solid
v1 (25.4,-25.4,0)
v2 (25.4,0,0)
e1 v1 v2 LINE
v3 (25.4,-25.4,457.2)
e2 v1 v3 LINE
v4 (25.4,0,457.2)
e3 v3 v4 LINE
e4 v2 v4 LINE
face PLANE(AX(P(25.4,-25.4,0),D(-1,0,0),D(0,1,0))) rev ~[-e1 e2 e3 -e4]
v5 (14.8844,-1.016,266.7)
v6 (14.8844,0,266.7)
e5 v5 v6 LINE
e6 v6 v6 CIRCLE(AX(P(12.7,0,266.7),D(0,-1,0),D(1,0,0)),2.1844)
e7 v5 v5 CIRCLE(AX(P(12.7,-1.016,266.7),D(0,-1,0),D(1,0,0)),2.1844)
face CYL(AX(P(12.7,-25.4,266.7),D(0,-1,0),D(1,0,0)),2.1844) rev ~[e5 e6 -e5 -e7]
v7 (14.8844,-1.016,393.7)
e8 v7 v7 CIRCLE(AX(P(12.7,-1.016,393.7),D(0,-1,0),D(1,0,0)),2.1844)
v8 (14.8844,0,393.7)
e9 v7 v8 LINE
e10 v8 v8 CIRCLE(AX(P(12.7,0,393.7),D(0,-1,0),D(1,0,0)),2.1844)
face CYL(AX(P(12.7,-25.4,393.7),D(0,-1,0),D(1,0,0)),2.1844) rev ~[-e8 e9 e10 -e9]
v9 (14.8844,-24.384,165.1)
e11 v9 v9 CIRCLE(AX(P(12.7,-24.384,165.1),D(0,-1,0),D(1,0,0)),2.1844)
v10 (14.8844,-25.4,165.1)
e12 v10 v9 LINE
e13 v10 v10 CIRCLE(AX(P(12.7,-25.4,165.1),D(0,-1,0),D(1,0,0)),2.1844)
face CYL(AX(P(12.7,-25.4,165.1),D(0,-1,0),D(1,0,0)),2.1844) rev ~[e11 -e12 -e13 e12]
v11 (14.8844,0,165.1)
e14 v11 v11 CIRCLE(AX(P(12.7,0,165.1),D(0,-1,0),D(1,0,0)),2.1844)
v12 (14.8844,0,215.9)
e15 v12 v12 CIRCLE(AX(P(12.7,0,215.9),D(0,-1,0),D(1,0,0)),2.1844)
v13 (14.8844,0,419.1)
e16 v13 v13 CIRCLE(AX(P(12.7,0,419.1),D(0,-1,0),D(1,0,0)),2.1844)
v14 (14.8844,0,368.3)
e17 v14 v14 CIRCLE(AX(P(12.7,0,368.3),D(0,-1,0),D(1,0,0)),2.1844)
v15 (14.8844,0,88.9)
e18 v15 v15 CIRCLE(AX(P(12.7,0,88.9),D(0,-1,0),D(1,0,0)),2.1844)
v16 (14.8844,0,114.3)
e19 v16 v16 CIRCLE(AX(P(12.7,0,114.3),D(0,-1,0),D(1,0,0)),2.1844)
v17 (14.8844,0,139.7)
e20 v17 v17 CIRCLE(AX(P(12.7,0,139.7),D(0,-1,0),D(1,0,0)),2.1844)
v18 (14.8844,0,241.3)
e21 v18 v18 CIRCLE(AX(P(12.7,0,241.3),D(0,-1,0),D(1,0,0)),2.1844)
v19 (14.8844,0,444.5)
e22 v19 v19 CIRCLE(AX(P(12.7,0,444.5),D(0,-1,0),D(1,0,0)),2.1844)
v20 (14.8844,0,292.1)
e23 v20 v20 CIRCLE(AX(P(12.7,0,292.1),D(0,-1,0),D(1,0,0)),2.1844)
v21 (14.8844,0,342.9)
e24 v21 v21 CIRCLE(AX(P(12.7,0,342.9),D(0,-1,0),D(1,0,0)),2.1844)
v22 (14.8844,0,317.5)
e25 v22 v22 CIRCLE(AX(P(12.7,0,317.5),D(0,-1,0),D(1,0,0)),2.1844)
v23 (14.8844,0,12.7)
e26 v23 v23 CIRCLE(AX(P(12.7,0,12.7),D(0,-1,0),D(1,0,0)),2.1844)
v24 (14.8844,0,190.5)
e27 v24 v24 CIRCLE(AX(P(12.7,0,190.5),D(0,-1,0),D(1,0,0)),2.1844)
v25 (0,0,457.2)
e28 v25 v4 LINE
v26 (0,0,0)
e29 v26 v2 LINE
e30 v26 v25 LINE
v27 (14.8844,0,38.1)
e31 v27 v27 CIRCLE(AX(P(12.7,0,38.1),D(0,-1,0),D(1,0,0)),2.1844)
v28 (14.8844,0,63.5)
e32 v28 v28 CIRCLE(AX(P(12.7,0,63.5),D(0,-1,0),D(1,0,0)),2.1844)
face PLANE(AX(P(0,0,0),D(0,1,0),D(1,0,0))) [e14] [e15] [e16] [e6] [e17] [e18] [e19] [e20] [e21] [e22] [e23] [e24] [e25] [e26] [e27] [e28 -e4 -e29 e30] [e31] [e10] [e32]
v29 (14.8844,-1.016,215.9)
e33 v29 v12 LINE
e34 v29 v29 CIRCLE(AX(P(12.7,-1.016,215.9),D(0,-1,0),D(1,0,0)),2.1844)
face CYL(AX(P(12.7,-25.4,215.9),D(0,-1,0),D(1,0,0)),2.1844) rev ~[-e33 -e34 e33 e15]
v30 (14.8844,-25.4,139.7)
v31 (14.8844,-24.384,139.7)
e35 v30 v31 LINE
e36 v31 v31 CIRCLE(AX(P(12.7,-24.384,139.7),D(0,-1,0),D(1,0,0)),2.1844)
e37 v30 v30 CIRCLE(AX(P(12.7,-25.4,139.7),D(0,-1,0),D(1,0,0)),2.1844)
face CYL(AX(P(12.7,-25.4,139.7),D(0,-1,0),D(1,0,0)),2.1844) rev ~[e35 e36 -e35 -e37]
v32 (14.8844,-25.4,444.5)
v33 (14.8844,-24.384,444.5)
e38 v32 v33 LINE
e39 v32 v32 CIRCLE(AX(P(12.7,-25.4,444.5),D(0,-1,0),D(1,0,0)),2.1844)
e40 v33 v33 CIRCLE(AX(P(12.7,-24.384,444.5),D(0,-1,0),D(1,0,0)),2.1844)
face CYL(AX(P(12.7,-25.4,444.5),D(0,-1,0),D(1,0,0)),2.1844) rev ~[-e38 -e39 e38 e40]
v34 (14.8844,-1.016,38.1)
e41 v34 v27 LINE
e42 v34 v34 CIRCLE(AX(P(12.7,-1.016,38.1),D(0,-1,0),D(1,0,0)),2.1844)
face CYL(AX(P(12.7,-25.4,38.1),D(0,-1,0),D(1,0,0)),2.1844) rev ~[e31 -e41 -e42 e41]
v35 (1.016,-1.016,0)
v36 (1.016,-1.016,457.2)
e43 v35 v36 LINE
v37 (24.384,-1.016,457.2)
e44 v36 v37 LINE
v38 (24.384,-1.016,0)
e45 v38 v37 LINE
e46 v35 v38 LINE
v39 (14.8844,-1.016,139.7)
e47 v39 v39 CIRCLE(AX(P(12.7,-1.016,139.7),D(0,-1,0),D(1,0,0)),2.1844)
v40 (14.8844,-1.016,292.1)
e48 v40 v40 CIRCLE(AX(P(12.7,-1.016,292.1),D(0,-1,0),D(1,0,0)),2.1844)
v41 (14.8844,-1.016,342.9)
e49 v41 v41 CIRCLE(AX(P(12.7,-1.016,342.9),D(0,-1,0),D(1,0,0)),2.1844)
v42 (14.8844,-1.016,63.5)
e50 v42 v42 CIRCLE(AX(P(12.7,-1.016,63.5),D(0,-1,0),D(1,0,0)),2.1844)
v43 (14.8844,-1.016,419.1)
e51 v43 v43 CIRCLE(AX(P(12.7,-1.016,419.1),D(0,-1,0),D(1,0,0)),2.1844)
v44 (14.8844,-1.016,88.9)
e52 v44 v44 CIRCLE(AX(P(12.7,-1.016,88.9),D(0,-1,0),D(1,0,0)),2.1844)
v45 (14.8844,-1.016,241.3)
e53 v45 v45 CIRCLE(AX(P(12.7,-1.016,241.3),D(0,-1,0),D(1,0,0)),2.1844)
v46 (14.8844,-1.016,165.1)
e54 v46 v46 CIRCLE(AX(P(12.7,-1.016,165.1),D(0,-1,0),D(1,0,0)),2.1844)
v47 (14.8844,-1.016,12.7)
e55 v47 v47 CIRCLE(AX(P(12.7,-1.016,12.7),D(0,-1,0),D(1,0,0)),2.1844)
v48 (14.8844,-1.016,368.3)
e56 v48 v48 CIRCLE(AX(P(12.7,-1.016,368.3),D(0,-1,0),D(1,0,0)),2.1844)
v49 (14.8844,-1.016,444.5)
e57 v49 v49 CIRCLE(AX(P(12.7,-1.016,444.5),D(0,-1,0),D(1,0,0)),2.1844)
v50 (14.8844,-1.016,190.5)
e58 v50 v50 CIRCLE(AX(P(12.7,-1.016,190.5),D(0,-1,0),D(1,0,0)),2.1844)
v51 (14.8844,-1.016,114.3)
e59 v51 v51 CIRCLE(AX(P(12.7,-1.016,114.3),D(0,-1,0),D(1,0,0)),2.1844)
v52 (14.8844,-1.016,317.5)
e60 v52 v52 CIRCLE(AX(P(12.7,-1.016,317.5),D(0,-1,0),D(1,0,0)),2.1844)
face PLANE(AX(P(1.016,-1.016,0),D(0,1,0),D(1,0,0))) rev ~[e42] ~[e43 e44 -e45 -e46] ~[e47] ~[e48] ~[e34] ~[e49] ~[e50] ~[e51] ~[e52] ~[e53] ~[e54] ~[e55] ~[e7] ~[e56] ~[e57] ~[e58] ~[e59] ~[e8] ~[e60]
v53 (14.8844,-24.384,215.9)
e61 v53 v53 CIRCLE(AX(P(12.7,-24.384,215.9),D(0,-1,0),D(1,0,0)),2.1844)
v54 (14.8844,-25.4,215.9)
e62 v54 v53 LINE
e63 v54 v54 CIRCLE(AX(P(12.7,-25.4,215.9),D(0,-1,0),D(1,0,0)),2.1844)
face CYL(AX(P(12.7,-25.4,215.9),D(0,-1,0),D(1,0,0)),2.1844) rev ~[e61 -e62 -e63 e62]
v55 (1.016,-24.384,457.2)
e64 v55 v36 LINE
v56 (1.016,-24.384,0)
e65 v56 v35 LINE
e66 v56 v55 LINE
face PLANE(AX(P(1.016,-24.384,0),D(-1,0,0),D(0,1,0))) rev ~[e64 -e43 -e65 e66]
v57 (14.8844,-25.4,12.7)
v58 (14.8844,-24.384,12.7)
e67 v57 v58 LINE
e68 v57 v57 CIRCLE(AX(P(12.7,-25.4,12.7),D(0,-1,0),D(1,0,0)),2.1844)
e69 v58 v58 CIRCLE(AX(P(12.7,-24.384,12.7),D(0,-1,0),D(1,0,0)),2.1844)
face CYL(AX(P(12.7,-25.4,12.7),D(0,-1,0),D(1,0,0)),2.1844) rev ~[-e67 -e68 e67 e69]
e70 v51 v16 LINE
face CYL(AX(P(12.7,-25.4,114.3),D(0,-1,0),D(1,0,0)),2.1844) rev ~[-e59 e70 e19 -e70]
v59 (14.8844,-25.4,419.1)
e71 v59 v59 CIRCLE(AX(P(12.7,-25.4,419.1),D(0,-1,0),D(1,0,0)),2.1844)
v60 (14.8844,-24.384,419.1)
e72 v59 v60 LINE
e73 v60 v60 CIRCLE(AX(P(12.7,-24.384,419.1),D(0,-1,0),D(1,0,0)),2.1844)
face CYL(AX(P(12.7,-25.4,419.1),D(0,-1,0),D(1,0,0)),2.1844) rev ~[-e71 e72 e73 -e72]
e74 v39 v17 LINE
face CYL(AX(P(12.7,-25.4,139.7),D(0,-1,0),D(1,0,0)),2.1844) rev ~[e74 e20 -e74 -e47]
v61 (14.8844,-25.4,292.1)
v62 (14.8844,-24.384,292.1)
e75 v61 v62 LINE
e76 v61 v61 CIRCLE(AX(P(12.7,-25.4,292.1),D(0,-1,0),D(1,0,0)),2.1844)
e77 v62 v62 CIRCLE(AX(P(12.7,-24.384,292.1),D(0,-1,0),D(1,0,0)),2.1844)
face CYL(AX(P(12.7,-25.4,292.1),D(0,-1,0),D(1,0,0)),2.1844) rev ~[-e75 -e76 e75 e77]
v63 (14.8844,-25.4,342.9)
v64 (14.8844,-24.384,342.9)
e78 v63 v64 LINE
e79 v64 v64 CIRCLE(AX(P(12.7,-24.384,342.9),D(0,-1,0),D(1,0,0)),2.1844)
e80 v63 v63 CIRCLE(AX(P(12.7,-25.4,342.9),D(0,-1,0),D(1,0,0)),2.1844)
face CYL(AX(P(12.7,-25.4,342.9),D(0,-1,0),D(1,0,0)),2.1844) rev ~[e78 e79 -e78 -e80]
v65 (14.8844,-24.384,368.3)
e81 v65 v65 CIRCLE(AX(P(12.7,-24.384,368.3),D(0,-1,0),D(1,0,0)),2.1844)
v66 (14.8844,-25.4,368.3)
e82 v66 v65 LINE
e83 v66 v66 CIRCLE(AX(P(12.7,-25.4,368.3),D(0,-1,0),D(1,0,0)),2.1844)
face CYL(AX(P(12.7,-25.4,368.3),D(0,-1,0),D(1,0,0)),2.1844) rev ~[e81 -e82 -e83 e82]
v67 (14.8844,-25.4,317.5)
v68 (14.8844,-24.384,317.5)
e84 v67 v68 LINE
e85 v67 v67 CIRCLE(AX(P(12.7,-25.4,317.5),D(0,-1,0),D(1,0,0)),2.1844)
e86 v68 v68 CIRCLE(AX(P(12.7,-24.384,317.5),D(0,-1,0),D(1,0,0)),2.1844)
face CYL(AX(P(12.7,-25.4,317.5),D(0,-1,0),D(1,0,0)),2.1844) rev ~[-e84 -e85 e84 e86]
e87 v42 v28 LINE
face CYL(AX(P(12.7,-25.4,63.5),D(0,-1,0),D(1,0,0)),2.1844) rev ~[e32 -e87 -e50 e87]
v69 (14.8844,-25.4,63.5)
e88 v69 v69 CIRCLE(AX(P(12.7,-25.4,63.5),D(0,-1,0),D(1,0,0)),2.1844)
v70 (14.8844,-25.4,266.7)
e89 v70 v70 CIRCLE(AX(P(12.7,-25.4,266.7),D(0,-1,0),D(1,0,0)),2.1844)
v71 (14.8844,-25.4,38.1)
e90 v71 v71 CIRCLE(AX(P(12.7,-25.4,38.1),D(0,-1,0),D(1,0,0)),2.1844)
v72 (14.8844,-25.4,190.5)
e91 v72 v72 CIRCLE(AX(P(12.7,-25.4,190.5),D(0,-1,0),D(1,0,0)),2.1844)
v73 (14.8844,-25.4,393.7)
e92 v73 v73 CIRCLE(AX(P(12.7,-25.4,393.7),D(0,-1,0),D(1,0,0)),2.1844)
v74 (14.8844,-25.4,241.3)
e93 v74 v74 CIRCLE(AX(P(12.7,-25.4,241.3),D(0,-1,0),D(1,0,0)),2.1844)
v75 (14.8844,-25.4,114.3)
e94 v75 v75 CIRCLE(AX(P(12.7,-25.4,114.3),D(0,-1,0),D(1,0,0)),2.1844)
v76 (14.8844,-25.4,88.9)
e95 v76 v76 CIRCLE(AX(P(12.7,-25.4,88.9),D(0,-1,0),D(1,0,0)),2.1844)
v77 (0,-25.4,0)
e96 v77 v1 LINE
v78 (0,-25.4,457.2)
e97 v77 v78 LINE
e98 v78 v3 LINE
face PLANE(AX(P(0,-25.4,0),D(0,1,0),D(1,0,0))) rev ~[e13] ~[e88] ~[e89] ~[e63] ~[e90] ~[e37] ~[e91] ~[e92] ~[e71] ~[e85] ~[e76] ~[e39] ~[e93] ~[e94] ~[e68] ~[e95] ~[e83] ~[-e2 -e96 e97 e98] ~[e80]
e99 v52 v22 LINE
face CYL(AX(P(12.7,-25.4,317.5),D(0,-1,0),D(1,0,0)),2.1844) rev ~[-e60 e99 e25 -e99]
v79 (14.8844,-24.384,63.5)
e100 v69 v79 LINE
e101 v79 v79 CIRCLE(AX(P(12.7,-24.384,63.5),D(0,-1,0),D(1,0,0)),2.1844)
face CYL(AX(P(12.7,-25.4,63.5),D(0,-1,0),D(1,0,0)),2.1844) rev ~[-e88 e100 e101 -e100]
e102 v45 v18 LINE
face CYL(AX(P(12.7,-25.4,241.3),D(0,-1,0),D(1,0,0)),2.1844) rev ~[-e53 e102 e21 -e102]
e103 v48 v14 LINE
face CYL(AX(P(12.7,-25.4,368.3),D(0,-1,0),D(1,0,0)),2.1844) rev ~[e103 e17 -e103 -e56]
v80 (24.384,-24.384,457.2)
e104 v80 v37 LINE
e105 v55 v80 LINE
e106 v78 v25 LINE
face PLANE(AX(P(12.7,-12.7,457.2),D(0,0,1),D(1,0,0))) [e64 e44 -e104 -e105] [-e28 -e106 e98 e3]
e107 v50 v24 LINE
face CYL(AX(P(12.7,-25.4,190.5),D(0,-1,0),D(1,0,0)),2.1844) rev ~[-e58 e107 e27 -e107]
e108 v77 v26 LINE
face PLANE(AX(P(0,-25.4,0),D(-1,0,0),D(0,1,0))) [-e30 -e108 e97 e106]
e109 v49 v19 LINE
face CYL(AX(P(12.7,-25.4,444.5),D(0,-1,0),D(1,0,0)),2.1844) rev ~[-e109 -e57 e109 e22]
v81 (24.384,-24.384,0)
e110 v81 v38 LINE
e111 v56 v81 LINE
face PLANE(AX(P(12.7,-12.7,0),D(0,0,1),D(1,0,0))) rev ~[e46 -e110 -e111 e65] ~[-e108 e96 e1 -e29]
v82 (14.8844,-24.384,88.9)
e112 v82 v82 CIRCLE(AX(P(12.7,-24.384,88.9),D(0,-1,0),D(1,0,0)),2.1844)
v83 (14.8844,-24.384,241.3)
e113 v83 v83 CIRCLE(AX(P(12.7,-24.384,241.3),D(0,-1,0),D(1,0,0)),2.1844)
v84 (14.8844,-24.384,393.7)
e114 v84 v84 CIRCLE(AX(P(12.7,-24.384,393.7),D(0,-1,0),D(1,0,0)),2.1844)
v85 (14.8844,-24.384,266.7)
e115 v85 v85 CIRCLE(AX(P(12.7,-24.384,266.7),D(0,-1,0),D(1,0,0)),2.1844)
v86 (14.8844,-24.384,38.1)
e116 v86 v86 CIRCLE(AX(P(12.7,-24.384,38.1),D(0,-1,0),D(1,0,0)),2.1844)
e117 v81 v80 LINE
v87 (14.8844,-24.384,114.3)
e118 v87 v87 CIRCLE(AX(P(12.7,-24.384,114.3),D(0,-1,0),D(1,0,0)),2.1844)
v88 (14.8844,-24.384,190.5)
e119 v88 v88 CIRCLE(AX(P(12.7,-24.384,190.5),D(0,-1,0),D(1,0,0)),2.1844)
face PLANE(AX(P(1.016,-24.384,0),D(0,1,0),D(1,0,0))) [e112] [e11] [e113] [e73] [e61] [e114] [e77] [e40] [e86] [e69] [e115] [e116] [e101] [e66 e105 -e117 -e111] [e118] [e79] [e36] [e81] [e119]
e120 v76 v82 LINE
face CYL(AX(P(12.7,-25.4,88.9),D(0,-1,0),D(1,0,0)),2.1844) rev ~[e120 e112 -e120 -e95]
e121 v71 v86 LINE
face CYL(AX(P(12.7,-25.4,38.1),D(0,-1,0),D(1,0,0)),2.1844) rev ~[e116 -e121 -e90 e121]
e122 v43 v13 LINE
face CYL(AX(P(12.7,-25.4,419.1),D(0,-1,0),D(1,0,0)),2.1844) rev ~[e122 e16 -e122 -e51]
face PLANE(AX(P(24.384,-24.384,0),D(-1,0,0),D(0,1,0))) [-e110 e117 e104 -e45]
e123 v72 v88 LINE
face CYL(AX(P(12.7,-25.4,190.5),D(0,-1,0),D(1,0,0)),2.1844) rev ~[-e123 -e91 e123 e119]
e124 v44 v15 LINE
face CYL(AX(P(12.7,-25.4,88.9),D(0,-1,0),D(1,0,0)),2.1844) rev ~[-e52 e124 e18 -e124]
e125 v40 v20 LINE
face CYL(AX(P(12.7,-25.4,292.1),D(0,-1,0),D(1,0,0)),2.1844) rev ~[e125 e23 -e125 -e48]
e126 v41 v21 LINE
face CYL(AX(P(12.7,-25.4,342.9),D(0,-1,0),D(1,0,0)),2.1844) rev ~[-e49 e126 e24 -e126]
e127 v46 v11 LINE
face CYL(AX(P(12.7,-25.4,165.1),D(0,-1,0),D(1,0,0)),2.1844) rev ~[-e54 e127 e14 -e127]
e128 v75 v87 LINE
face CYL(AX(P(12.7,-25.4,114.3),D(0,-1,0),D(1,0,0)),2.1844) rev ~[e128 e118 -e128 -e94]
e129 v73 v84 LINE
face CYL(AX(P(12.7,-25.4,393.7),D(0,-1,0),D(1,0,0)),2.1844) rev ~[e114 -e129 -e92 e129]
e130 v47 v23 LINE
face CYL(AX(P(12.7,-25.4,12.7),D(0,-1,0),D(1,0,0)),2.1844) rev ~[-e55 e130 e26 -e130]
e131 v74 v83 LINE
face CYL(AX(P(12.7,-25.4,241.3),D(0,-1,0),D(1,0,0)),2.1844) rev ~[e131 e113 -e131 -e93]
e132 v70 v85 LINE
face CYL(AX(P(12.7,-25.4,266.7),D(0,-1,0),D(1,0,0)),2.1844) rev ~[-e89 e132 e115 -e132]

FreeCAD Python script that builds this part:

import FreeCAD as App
import Part
import Sketcher
from FreeCAD import Vector
Q = App.Units.Quantity


def add_polygon(sketch, points):
    """Adds a closed chain of lines whose ends are joined by coincident constraints."""
    first, n = sketch.GeometryCount, len(points)
    for a, b in zip(points, points[1:] + points[:1]):
        sketch.addGeometry(Part.LineSegment(App.Vector(*a, 0), App.Vector(*b, 0)), False)
    for i in range(n):
        sketch.addConstraint(Sketcher.Constraint("Coincident", first + i, 2, first + (i + 1) % n, 1))

doc = App.newDocument("Part")
body = doc.addObject("PartDesign::Body", "Body")

# Sketch on XY plane
sketch1 = body.newObject("Sketcher::SketchObject", "Sketch")
sketch1.AttachmentSupport = (doc.getObject("XY_Plane"), [""])
sketch1.MapMode = "FlatFace"
add_polygon(sketch1, [(0, 0), (0, -25), (25, -25), (25, 0)])  # lines 0-3
add_polygon(sketch1, [(24, -24), (1, -24), (1, -1), (24, -1)])  # lines 4-7
sketch1.addConstraint([
    Sketcher.Constraint("Vertical", 0),
    Sketcher.Constraint("Horizontal", 1),
    Sketcher.Constraint("Vertical", 2),
    Sketcher.Constraint("Horizontal", 3),
    Sketcher.Constraint("Horizontal", 4),
    Sketcher.Constraint("Vertical", 5),
    Sketcher.Constraint("Horizontal", 6),
    Sketcher.Constraint("Vertical", 7),
    Sketcher.Constraint("Coincident", 3, 2, -1, 1),
    Sketcher.Constraint("Equal", 3, 0),
    Sketcher.Constraint("Equal", 6, 5),
    Sketcher.Constraint("DistanceX", 1, 1, 1, 2, Q("1 in")),
    Sketcher.Constraint("DistanceX", 4, 2, 4, 1, Q("0.92 in")),
    Sketcher.Constraint("DistanceX", -1, 1, 4, 2, Q("0.04 in")),
    Sketcher.Constraint("DistanceY", 4, 2, -1, 1, Q("0.96 in")),
])
pad1 = body.newObject("PartDesign::Pad", "Pad")
pad1.Profile = sketch1
pad1.Length = Q("18 in")

# Sketch on XZ plane
sketch2 = body.newObject("Sketcher::SketchObject", "Sketch001")
sketch2.AttachmentSupport = (doc.getObject("XZ_Plane"), [""])
sketch2.MapMode = "FlatFace"
sketch2.AttachmentOffset = App.Placement(Vector(0, 0, 1 * 25.4), App.Rotation())
sketch2.addGeometry([
    Part.Circle(Vector(12.7, 12.7, 0), Vector(0, 0, 1), 2.2),  # 0
    Part.Circle(Vector(12.7, 38.1, 0), Vector(0, 0, 1), 2.2),  # 1
    Part.Circle(Vector(12.7, 241.3, 0), Vector(0, 0, 1), 2.2),  # 2
    Part.Circle(Vector(12.7, 215.9, 0), Vector(0, 0, 1), 2.2),  # 3
    Part.Circle(Vector(12.7, 190.5, 0), Vector(0, 0, 1), 2.2),  # 4
    Part.Circle(Vector(12.7, 165.1, 0), Vector(0, 0, 1), 2.2),  # 5
    Part.Circle(Vector(12.7, 139.7, 0), Vector(0, 0, 1), 2.2),  # 6
    Part.Circle(Vector(12.7, 114.3, 0), Vector(0, 0, 1), 2.2),  # 7
    Part.Circle(Vector(12.7, 88.9, 0), Vector(0, 0, 1), 2.2),  # 8
    Part.Circle(Vector(12.7, 63.5, 0), Vector(0, 0, 1), 2.2),  # 9
    Part.Circle(Vector(12.7, 266.7, 0), Vector(0, 0, 1), 2.2),  # 10
    Part.Circle(Vector(12.7, 292.1, 0), Vector(0, 0, 1), 2.2),  # 11
    Part.Circle(Vector(12.7, 317.5, 0), Vector(0, 0, 1), 2.2),  # 12
    Part.Circle(Vector(12.7, 342.9, 0), Vector(0, 0, 1), 2.2),  # 13
    Part.Circle(Vector(12.7, 368.3, 0), Vector(0, 0, 1), 2.2),  # 14
    Part.Circle(Vector(12.7, 393.7, 0), Vector(0, 0, 1), 2.2),  # 15
    Part.Circle(Vector(12.7, 419.1, 0), Vector(0, 0, 1), 2.2),  # 16
    Part.Circle(Vector(12.7, 444.5, 0), Vector(0, 0, 1), 2.2),  # 17
    Part.Circle(Vector(12.7, 469.9, 0), Vector(0, 0, 1), 2.2),  # 18
    Part.Circle(Vector(12.7, 495.3, 0), Vector(0, 0, 1), 2.2),  # 19
    Part.Circle(Vector(12.7, 520.7, 0), Vector(0, 0, 1), 2.2),  # 20
    Part.Circle(Vector(12.7, 546.1, 0), Vector(0, 0, 1), 2.2),  # 21
    Part.Circle(Vector(12.7, 571.5, 0), Vector(0, 0, 1), 2.2),  # 22
    Part.Circle(Vector(12.7, 596.9, 0), Vector(0, 0, 1), 2.2),  # 23
    Part.Circle(Vector(12.7, 622.3, 0), Vector(0, 0, 1), 2.2),  # 24
], False)
sketch2.addConstraint([
    Sketcher.Constraint("Equal", 0, 1),
    Sketcher.Constraint("Equal", 1, 2),
    Sketcher.Constraint("Equal", 2, 3),
    Sketcher.Constraint("Equal", 3, 4),
    Sketcher.Constraint("Equal", 4, 5),
    Sketcher.Constraint("Equal", 5, 6),
    Sketcher.Constraint("Equal", 6, 7),
    Sketcher.Constraint("Equal", 7, 8),
    Sketcher.Constraint("Equal", 8, 9),
    Sketcher.Constraint("Equal", 9, 10),
    Sketcher.Constraint("Equal", 10, 11),
    Sketcher.Constraint("Equal", 11, 12),
    Sketcher.Constraint("Equal", 12, 13),
    Sketcher.Constraint("Equal", 13, 14),
    Sketcher.Constraint("Equal", 14, 15),
    Sketcher.Constraint("Equal", 15, 16),
    Sketcher.Constraint("Equal", 16, 17),
    Sketcher.Constraint("Equal", 17, 18),
    Sketcher.Constraint("Equal", 18, 19),
    Sketcher.Constraint("Equal", 19, 20),
    Sketcher.Constraint("Equal", 20, 21),
    Sketcher.Constraint("Equal", 21, 22),
    Sketcher.Constraint("Equal", 22, 23),
    Sketcher.Constraint("Equal", 23, 24),
    Sketcher.Constraint("Vertical", 0, 3, 1, 3),
    Sketcher.Constraint("Vertical", 1, 3, 2, 3),
    Sketcher.Constraint("Vertical", 2, 3, 3, 3),
    Sketcher.Constraint("Vertical", 3, 3, 4, 3),
    Sketcher.Constraint("Vertical", 4, 3, 5, 3),
    Sketcher.Constraint("Vertical", 5, 3, 6, 3),
    Sketcher.Constraint("Vertical", 6, 3, 7, 3),
    Sketcher.Constraint("Vertical", 7, 3, 8, 3),
    Sketcher.Constraint("Vertical", 8, 3, 9, 3),
    Sketcher.Constraint("Vertical", 9, 3, 10, 3),
    Sketcher.Constraint("Vertical", 10, 3, 11, 3),
    Sketcher.Constraint("Vertical", 11, 3, 12, 3),
    Sketcher.Constraint("Vertical", 12, 3, 13, 3),
    Sketcher.Constraint("Vertical", 13, 3, 14, 3),
    Sketcher.Constraint("Vertical", 14, 3, 15, 3),
    Sketcher.Constraint("Vertical", 15, 3, 16, 3),
    Sketcher.Constraint("Vertical", 16, 3, 17, 3),
    Sketcher.Constraint("Vertical", 17, 3, 18, 3),
    Sketcher.Constraint("Vertical", 18, 3, 19, 3),
    Sketcher.Constraint("Vertical", 19, 3, 20, 3),
    Sketcher.Constraint("Vertical", 20, 3, 21, 3),
    Sketcher.Constraint("Vertical", 21, 3, 22, 3),
    Sketcher.Constraint("Vertical", 22, 3, 23, 3),
    Sketcher.Constraint("Vertical", 23, 3, 24, 3),
    Sketcher.Constraint("Diameter", 0, Q("0.172 in")),
    Sketcher.Constraint("DistanceY", 0, 3, 1, 3, Q("1 in")),
    Sketcher.Constraint("DistanceY", 1, 3, 2, 3, Q("8 in")),
    Sketcher.Constraint("DistanceY", 3, 3, 2, 3, Q("1 in")),
    Sketcher.Constraint("DistanceY", 4, 3, 3, 3, Q("1 in")),
    Sketcher.Constraint("DistanceY", 5, 3, 4, 3, Q("1 in")),
    Sketcher.Constraint("DistanceY", 6, 3, 5, 3, Q("1 in")),
    Sketcher.Constraint("DistanceY", 7, 3, 6, 3, Q("1 in")),
    Sketcher.Constraint("DistanceY", 8, 3, 7, 3, Q("1 in")),
    Sketcher.Constraint("DistanceY", 1, 3, 9, 3, Q("1 in")),
    Sketcher.Constraint("DistanceY", 2, 3, 10, 3, Q("1 in")),
    Sketcher.Constraint("DistanceY", 10, 3, 11, 3, Q("1 in")),
    Sketcher.Constraint("DistanceY", 11, 3, 12, 3, Q("1 in")),
    Sketcher.Constraint("DistanceY", 12, 3, 13, 3, Q("1 in")),
    Sketcher.Constraint("DistanceY", 13, 3, 14, 3, Q("1 in")),
    Sketcher.Constraint("DistanceY", 14, 3, 15, 3, Q("1 in")),
    Sketcher.Constraint("DistanceY", 15, 3, 16, 3, Q("1 in")),
    Sketcher.Constraint("DistanceY", 16, 3, 17, 3, Q("1 in")),
    Sketcher.Constraint("DistanceY", 17, 3, 18, 3, Q("1 in")),
    Sketcher.Constraint("DistanceY", 18, 3, 19, 3, Q("1 in")),
    Sketcher.Constraint("DistanceY", 19, 3, 20, 3, Q("1 in")),
    Sketcher.Constraint("DistanceY", 20, 3, 21, 3, Q("1 in")),
    Sketcher.Constraint("DistanceY", 21, 3, 22, 3, Q("1 in")),
    Sketcher.Constraint("DistanceY", 22, 3, 23, 3, Q("1 in")),
    Sketcher.Constraint("DistanceY", 23, 3, 24, 3, Q("1 in")),
    Sketcher.Constraint("DistanceX", -1, 1, 0, 3, Q("0.5 in")),
    Sketcher.Constraint("DistanceY", -1, 1, 0, 3, Q("0.5 in")),
])
pocket1 = body.newObject("PartDesign::Pocket", "Pocket")
pocket1.Profile = sketch2
pocket1.Length = Q("1 in")

doc.recompute()
